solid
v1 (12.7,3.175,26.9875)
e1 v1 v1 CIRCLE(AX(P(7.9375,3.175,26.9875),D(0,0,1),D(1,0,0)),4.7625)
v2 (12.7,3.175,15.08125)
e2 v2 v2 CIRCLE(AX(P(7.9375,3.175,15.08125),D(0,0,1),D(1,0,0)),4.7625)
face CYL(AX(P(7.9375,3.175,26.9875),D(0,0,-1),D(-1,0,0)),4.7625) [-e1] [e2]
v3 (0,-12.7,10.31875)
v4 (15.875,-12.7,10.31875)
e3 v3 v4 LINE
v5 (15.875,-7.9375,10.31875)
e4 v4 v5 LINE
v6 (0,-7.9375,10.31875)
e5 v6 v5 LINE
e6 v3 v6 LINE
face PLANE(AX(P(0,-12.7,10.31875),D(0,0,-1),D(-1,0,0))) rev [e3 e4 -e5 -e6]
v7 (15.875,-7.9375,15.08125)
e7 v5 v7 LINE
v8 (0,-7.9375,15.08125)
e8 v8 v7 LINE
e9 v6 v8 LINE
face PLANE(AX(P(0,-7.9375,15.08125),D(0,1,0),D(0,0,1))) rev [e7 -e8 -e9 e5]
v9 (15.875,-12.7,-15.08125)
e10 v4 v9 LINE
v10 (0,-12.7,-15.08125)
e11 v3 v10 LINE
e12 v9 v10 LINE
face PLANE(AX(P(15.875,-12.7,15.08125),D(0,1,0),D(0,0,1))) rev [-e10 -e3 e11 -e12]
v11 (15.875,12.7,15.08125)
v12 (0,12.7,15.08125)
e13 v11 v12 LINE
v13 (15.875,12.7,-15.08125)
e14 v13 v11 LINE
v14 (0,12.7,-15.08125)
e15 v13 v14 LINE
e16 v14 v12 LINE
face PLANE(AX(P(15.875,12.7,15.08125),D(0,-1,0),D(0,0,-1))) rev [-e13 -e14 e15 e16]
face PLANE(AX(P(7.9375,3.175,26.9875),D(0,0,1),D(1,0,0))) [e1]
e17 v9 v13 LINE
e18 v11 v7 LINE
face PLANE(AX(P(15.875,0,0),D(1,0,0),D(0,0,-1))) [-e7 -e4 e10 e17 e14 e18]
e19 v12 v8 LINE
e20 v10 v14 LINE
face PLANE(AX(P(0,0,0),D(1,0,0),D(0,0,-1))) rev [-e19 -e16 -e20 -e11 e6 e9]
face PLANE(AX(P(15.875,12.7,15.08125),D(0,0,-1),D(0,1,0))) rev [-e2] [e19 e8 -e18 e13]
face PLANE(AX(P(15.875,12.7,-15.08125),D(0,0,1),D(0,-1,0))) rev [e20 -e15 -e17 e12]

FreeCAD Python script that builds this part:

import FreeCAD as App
import Part
import Sketcher
from FreeCAD import Vector
Q = App.Units.Quantity


def add_polygon(sketch, points):
    """Adds a closed chain of lines whose ends are joined by coincident constraints."""
    first, n = sketch.GeometryCount, len(points)
    for a, b in zip(points, points[1:] + points[:1]):
        sketch.addGeometry(Part.LineSegment(App.Vector(*a, 0), App.Vector(*b, 0)), False)
    for i in range(n):
        sketch.addConstraint(Sketcher.Constraint("Coincident", first + i, 2, first + (i + 1) % n, 1))

doc = App.newDocument("Part")
body = doc.addObject("PartDesign::Body", "Body")

# Sketch on YZ plane
sketch1 = body.newObject("Sketcher::SketchObject", "Sketch")
sketch1.AttachmentSupport = (doc.getObject("YZ_Plane"), [""])
sketch1.MapMode = "FlatFace"
add_polygon(sketch1, [(12.7, 15.08125), (-12.7, 15.08125), (-12.7, -15.08125), (12.7, -15.08125)])  # lines 0-3
sketch1.addConstraint(Sketcher.Constraint("Horizontal", 0))
sketch1.addConstraint(Sketcher.Constraint("Vertical", 1))
sketch1.addConstraint(Sketcher.Constraint("Horizontal", 2))
sketch1.addConstraint(Sketcher.Constraint("Vertical", 3))
sketch1.addConstraint(Sketcher.Constraint("Symmetric", 0, 2, 2, 2, -1, 1))
sketch1.addConstraint(Sketcher.Constraint("DistanceX", 0, 2, 0, 1, Q("1 in")))
sketch1.addConstraint(Sketcher.Constraint("DistanceY", 1, 2, 1, 1, Q("1.1875 in")))
pad1 = body.newObject("PartDesign::Pad", "Pad")
pad1.Profile = sketch1
pad1.Length = Q("0.625 in")

# Sketch on XY plane
sketch2 = body.newObject("Sketcher::SketchObject", "Sketch001")
sketch2.AttachmentSupport = (doc.getObject("XY_Plane"), [""])
sketch2.MapMode = "FlatFace"
sketch2.AttachmentOffset = App.Placement(Vector(0, 0, 0.59375 * 25.4), App.Rotation())
sketch2.addGeometry(Part.Circle(Vector(7.9375, 3.175, 0), Vector(0, 0, 1), 4.7625), False)
sketch2.addConstraint(Sketcher.Constraint("Diameter", 0, Q("0.375 in")))
sketch2.addConstraint(Sketcher.Constraint("DistanceX", -1, 1, 0, 3, Q("0.3125 in")))
sketch2.addConstraint(Sketcher.Constraint("DistanceY", -1, 1, 0, 3, Q("0.125 in")))
pad2 = body.newObject("PartDesign::Pad", "Pad001")
pad2.Profile = sketch2
pad2.Length = Q("0.46875 in")

# Sketch on YZ plane
sketch3 = body.newObject("Sketcher::SketchObject", "Sketch002")
sketch3.AttachmentSupport = (doc.getObject("YZ_Plane"), [""])
sketch3.MapMode = "FlatFace"
sketch3.AttachmentOffset = App.Placement(Vector(0, 0, 0.625 * 25.4), App.Rotation())
add_polygon(sketch3, [(-7.9375, 15.08125), (-12.7, 15.08125), (-12.7, 10.31875), (-7.9375, 10.31875)])  # lines 0-3
sketch3.addConstraint(Sketcher.Constraint("Horizontal", 0))
sketch3.addConstraint(Sketcher.Constraint("Vertical", 1))
sketch3.addConstraint(Sketcher.Constraint("Horizontal", 2))
sketch3.addConstraint(Sketcher.Constraint("Vertical", 3))
sketch3.addConstraint(Sketcher.Constraint("Equal", 2, 1))
sketch3.addConstraint(Sketcher.Constraint("DistanceX", 0, 2, -1, 1, Q("0.5 in")))
sketch3.addConstraint(Sketcher.Constraint("DistanceX", 0, 2, 0, 1, Q("0.1875 in")))
sketch3.addConstraint(Sketcher.Constraint("DistanceY", -1, 1, 0, 2, Q("0.59375 in")))
pocket1 = body.newObject("PartDesign::Pocket", "Pocket")
pocket1.Profile = sketch3
pocket1.Type = "ThroughAll"

doc.recompute()
